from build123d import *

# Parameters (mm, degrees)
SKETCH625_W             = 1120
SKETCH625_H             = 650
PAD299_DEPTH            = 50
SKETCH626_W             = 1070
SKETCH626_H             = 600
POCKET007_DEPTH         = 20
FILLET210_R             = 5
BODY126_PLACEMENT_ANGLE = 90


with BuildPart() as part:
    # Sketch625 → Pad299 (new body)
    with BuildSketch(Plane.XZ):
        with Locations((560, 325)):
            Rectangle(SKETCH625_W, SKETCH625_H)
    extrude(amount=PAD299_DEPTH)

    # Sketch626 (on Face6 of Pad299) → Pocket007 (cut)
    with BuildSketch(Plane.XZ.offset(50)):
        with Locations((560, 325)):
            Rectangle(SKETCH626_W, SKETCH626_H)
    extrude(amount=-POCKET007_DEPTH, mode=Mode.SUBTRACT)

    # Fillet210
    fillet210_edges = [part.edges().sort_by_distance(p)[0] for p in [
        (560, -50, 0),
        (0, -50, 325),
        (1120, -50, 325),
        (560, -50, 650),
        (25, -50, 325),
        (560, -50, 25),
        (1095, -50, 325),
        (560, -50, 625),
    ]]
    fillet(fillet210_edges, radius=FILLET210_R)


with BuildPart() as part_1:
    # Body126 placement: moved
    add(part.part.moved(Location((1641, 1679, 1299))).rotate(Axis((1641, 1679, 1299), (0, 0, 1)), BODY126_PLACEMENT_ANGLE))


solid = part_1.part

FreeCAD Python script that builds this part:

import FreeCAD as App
import Part
import Sketcher


def edges_at(feature, points):
    """Names of the edges that pass closest to the given points."""
    edges = feature.Shape.Edges
    near = lambda p: min(range(len(edges)), key=lambda i: edges[i].distToShape(Part.Vertex(*p))[0])
    return sorted({f"Edge{near(p) + 1}" for p in points})


def add_polygon(sketch, points):
    """Adds a closed chain of lines whose ends are joined by coincident constraints."""
    first, n = sketch.GeometryCount, len(points)
    for a, b in zip(points, points[1:] + points[:1]):
        sketch.addGeometry(Part.LineSegment(App.Vector(*a, 0), App.Vector(*b, 0)), False)
    for i in range(n):
        sketch.addConstraint(Sketcher.Constraint("Coincident", first + i, 2, first + (i + 1) % n, 1))

doc = App.newDocument("Part")
body = doc.addObject("PartDesign::Body", "Body")

# Sketch on XZ plane
sketch1 = body.newObject("Sketcher::SketchObject", "Sketch")
sketch1.AttachmentSupport = (doc.getObject("XZ_Plane"), [""])
sketch1.MapMode = "FlatFace"
add_polygon(sketch1, [(0, 650), (0, 0), (1120, 0), (1120, 650)])  # lines 0-3
sketch1.addConstraint([
    Sketcher.Constraint("Vertical", 0),
    Sketcher.Constraint("Horizontal", 1),
    Sketcher.Constraint("Vertical", 2),
    Sketcher.Constraint("Horizontal", 3),
    Sketcher.Constraint("Coincident", 0, 2, -1, 1),
    Sketcher.Constraint("DistanceX", 1, 1, 1, 2, 1120.0),
    Sketcher.Constraint("DistanceY", 0, 2, 0, 1, 650.0),
])
pad1 = body.newObject("PartDesign::Pad", "Pad")
pad1.Profile = sketch1
pad1.Length = 50

# Sketch on XZ plane
sketch2 = body.newObject("Sketcher::SketchObject", "Sketch001")
sketch2.AttachmentSupport = (doc.getObject("XZ_Plane"), [""])
sketch2.MapMode = "FlatFace"
sketch2.AttachmentOffset = App.Placement(App.Vector(0, 0, 50), App.Rotation())
add_polygon(sketch2, [(25, 625), (25, 25), (1095, 25), (1095, 625)])  # lines 0-3
sketch2.addConstraint([
    Sketcher.Constraint("Vertical", 0),
    Sketcher.Constraint("Horizontal", 1),
    Sketcher.Constraint("Vertical", 2),
    Sketcher.Constraint("Horizontal", 3),
    Sketcher.Constraint("DistanceX", 1, 1, 1, 2, 1070.0),
    Sketcher.Constraint("DistanceY", 0, 2, 0, 1, 600.0),
    Sketcher.Constraint("DistanceX", -1, 1, 0, 2, 25.0),
    Sketcher.Constraint("DistanceY", -1, 1, 0, 2, 25.0),
])
pocket1 = body.newObject("PartDesign::Pocket", "Pocket")
pocket1.Profile = sketch2
pocket1.Length = 20
doc.recompute()

fillet = body.newObject("PartDesign::Fillet", "Fillet")
fillet.Base = (pocket1, edges_at(pocket1, [
    (560, -50, 0),
    (0, -50, 325),
    (1120, -50, 325),
    (560, -50, 650),
    (25, -50, 325),
    (560, -50, 25),
    (1095, -50, 325),
    (560, -50, 625),
]))
fillet.Radius = 5
body2 = doc.addObject("PartDesign::Body", "Body001")
doc.recompute()

body.Placement = App.Placement(App.Vector(1641, 1679, 1299), App.Rotation(App.Vector(0, 0, 1), 90))
boolean = body2.newObject("PartDesign::Boolean", "Boolean")
boolean.Type = "Fuse"
boolean.addObjects([body])

doc.recompute()
